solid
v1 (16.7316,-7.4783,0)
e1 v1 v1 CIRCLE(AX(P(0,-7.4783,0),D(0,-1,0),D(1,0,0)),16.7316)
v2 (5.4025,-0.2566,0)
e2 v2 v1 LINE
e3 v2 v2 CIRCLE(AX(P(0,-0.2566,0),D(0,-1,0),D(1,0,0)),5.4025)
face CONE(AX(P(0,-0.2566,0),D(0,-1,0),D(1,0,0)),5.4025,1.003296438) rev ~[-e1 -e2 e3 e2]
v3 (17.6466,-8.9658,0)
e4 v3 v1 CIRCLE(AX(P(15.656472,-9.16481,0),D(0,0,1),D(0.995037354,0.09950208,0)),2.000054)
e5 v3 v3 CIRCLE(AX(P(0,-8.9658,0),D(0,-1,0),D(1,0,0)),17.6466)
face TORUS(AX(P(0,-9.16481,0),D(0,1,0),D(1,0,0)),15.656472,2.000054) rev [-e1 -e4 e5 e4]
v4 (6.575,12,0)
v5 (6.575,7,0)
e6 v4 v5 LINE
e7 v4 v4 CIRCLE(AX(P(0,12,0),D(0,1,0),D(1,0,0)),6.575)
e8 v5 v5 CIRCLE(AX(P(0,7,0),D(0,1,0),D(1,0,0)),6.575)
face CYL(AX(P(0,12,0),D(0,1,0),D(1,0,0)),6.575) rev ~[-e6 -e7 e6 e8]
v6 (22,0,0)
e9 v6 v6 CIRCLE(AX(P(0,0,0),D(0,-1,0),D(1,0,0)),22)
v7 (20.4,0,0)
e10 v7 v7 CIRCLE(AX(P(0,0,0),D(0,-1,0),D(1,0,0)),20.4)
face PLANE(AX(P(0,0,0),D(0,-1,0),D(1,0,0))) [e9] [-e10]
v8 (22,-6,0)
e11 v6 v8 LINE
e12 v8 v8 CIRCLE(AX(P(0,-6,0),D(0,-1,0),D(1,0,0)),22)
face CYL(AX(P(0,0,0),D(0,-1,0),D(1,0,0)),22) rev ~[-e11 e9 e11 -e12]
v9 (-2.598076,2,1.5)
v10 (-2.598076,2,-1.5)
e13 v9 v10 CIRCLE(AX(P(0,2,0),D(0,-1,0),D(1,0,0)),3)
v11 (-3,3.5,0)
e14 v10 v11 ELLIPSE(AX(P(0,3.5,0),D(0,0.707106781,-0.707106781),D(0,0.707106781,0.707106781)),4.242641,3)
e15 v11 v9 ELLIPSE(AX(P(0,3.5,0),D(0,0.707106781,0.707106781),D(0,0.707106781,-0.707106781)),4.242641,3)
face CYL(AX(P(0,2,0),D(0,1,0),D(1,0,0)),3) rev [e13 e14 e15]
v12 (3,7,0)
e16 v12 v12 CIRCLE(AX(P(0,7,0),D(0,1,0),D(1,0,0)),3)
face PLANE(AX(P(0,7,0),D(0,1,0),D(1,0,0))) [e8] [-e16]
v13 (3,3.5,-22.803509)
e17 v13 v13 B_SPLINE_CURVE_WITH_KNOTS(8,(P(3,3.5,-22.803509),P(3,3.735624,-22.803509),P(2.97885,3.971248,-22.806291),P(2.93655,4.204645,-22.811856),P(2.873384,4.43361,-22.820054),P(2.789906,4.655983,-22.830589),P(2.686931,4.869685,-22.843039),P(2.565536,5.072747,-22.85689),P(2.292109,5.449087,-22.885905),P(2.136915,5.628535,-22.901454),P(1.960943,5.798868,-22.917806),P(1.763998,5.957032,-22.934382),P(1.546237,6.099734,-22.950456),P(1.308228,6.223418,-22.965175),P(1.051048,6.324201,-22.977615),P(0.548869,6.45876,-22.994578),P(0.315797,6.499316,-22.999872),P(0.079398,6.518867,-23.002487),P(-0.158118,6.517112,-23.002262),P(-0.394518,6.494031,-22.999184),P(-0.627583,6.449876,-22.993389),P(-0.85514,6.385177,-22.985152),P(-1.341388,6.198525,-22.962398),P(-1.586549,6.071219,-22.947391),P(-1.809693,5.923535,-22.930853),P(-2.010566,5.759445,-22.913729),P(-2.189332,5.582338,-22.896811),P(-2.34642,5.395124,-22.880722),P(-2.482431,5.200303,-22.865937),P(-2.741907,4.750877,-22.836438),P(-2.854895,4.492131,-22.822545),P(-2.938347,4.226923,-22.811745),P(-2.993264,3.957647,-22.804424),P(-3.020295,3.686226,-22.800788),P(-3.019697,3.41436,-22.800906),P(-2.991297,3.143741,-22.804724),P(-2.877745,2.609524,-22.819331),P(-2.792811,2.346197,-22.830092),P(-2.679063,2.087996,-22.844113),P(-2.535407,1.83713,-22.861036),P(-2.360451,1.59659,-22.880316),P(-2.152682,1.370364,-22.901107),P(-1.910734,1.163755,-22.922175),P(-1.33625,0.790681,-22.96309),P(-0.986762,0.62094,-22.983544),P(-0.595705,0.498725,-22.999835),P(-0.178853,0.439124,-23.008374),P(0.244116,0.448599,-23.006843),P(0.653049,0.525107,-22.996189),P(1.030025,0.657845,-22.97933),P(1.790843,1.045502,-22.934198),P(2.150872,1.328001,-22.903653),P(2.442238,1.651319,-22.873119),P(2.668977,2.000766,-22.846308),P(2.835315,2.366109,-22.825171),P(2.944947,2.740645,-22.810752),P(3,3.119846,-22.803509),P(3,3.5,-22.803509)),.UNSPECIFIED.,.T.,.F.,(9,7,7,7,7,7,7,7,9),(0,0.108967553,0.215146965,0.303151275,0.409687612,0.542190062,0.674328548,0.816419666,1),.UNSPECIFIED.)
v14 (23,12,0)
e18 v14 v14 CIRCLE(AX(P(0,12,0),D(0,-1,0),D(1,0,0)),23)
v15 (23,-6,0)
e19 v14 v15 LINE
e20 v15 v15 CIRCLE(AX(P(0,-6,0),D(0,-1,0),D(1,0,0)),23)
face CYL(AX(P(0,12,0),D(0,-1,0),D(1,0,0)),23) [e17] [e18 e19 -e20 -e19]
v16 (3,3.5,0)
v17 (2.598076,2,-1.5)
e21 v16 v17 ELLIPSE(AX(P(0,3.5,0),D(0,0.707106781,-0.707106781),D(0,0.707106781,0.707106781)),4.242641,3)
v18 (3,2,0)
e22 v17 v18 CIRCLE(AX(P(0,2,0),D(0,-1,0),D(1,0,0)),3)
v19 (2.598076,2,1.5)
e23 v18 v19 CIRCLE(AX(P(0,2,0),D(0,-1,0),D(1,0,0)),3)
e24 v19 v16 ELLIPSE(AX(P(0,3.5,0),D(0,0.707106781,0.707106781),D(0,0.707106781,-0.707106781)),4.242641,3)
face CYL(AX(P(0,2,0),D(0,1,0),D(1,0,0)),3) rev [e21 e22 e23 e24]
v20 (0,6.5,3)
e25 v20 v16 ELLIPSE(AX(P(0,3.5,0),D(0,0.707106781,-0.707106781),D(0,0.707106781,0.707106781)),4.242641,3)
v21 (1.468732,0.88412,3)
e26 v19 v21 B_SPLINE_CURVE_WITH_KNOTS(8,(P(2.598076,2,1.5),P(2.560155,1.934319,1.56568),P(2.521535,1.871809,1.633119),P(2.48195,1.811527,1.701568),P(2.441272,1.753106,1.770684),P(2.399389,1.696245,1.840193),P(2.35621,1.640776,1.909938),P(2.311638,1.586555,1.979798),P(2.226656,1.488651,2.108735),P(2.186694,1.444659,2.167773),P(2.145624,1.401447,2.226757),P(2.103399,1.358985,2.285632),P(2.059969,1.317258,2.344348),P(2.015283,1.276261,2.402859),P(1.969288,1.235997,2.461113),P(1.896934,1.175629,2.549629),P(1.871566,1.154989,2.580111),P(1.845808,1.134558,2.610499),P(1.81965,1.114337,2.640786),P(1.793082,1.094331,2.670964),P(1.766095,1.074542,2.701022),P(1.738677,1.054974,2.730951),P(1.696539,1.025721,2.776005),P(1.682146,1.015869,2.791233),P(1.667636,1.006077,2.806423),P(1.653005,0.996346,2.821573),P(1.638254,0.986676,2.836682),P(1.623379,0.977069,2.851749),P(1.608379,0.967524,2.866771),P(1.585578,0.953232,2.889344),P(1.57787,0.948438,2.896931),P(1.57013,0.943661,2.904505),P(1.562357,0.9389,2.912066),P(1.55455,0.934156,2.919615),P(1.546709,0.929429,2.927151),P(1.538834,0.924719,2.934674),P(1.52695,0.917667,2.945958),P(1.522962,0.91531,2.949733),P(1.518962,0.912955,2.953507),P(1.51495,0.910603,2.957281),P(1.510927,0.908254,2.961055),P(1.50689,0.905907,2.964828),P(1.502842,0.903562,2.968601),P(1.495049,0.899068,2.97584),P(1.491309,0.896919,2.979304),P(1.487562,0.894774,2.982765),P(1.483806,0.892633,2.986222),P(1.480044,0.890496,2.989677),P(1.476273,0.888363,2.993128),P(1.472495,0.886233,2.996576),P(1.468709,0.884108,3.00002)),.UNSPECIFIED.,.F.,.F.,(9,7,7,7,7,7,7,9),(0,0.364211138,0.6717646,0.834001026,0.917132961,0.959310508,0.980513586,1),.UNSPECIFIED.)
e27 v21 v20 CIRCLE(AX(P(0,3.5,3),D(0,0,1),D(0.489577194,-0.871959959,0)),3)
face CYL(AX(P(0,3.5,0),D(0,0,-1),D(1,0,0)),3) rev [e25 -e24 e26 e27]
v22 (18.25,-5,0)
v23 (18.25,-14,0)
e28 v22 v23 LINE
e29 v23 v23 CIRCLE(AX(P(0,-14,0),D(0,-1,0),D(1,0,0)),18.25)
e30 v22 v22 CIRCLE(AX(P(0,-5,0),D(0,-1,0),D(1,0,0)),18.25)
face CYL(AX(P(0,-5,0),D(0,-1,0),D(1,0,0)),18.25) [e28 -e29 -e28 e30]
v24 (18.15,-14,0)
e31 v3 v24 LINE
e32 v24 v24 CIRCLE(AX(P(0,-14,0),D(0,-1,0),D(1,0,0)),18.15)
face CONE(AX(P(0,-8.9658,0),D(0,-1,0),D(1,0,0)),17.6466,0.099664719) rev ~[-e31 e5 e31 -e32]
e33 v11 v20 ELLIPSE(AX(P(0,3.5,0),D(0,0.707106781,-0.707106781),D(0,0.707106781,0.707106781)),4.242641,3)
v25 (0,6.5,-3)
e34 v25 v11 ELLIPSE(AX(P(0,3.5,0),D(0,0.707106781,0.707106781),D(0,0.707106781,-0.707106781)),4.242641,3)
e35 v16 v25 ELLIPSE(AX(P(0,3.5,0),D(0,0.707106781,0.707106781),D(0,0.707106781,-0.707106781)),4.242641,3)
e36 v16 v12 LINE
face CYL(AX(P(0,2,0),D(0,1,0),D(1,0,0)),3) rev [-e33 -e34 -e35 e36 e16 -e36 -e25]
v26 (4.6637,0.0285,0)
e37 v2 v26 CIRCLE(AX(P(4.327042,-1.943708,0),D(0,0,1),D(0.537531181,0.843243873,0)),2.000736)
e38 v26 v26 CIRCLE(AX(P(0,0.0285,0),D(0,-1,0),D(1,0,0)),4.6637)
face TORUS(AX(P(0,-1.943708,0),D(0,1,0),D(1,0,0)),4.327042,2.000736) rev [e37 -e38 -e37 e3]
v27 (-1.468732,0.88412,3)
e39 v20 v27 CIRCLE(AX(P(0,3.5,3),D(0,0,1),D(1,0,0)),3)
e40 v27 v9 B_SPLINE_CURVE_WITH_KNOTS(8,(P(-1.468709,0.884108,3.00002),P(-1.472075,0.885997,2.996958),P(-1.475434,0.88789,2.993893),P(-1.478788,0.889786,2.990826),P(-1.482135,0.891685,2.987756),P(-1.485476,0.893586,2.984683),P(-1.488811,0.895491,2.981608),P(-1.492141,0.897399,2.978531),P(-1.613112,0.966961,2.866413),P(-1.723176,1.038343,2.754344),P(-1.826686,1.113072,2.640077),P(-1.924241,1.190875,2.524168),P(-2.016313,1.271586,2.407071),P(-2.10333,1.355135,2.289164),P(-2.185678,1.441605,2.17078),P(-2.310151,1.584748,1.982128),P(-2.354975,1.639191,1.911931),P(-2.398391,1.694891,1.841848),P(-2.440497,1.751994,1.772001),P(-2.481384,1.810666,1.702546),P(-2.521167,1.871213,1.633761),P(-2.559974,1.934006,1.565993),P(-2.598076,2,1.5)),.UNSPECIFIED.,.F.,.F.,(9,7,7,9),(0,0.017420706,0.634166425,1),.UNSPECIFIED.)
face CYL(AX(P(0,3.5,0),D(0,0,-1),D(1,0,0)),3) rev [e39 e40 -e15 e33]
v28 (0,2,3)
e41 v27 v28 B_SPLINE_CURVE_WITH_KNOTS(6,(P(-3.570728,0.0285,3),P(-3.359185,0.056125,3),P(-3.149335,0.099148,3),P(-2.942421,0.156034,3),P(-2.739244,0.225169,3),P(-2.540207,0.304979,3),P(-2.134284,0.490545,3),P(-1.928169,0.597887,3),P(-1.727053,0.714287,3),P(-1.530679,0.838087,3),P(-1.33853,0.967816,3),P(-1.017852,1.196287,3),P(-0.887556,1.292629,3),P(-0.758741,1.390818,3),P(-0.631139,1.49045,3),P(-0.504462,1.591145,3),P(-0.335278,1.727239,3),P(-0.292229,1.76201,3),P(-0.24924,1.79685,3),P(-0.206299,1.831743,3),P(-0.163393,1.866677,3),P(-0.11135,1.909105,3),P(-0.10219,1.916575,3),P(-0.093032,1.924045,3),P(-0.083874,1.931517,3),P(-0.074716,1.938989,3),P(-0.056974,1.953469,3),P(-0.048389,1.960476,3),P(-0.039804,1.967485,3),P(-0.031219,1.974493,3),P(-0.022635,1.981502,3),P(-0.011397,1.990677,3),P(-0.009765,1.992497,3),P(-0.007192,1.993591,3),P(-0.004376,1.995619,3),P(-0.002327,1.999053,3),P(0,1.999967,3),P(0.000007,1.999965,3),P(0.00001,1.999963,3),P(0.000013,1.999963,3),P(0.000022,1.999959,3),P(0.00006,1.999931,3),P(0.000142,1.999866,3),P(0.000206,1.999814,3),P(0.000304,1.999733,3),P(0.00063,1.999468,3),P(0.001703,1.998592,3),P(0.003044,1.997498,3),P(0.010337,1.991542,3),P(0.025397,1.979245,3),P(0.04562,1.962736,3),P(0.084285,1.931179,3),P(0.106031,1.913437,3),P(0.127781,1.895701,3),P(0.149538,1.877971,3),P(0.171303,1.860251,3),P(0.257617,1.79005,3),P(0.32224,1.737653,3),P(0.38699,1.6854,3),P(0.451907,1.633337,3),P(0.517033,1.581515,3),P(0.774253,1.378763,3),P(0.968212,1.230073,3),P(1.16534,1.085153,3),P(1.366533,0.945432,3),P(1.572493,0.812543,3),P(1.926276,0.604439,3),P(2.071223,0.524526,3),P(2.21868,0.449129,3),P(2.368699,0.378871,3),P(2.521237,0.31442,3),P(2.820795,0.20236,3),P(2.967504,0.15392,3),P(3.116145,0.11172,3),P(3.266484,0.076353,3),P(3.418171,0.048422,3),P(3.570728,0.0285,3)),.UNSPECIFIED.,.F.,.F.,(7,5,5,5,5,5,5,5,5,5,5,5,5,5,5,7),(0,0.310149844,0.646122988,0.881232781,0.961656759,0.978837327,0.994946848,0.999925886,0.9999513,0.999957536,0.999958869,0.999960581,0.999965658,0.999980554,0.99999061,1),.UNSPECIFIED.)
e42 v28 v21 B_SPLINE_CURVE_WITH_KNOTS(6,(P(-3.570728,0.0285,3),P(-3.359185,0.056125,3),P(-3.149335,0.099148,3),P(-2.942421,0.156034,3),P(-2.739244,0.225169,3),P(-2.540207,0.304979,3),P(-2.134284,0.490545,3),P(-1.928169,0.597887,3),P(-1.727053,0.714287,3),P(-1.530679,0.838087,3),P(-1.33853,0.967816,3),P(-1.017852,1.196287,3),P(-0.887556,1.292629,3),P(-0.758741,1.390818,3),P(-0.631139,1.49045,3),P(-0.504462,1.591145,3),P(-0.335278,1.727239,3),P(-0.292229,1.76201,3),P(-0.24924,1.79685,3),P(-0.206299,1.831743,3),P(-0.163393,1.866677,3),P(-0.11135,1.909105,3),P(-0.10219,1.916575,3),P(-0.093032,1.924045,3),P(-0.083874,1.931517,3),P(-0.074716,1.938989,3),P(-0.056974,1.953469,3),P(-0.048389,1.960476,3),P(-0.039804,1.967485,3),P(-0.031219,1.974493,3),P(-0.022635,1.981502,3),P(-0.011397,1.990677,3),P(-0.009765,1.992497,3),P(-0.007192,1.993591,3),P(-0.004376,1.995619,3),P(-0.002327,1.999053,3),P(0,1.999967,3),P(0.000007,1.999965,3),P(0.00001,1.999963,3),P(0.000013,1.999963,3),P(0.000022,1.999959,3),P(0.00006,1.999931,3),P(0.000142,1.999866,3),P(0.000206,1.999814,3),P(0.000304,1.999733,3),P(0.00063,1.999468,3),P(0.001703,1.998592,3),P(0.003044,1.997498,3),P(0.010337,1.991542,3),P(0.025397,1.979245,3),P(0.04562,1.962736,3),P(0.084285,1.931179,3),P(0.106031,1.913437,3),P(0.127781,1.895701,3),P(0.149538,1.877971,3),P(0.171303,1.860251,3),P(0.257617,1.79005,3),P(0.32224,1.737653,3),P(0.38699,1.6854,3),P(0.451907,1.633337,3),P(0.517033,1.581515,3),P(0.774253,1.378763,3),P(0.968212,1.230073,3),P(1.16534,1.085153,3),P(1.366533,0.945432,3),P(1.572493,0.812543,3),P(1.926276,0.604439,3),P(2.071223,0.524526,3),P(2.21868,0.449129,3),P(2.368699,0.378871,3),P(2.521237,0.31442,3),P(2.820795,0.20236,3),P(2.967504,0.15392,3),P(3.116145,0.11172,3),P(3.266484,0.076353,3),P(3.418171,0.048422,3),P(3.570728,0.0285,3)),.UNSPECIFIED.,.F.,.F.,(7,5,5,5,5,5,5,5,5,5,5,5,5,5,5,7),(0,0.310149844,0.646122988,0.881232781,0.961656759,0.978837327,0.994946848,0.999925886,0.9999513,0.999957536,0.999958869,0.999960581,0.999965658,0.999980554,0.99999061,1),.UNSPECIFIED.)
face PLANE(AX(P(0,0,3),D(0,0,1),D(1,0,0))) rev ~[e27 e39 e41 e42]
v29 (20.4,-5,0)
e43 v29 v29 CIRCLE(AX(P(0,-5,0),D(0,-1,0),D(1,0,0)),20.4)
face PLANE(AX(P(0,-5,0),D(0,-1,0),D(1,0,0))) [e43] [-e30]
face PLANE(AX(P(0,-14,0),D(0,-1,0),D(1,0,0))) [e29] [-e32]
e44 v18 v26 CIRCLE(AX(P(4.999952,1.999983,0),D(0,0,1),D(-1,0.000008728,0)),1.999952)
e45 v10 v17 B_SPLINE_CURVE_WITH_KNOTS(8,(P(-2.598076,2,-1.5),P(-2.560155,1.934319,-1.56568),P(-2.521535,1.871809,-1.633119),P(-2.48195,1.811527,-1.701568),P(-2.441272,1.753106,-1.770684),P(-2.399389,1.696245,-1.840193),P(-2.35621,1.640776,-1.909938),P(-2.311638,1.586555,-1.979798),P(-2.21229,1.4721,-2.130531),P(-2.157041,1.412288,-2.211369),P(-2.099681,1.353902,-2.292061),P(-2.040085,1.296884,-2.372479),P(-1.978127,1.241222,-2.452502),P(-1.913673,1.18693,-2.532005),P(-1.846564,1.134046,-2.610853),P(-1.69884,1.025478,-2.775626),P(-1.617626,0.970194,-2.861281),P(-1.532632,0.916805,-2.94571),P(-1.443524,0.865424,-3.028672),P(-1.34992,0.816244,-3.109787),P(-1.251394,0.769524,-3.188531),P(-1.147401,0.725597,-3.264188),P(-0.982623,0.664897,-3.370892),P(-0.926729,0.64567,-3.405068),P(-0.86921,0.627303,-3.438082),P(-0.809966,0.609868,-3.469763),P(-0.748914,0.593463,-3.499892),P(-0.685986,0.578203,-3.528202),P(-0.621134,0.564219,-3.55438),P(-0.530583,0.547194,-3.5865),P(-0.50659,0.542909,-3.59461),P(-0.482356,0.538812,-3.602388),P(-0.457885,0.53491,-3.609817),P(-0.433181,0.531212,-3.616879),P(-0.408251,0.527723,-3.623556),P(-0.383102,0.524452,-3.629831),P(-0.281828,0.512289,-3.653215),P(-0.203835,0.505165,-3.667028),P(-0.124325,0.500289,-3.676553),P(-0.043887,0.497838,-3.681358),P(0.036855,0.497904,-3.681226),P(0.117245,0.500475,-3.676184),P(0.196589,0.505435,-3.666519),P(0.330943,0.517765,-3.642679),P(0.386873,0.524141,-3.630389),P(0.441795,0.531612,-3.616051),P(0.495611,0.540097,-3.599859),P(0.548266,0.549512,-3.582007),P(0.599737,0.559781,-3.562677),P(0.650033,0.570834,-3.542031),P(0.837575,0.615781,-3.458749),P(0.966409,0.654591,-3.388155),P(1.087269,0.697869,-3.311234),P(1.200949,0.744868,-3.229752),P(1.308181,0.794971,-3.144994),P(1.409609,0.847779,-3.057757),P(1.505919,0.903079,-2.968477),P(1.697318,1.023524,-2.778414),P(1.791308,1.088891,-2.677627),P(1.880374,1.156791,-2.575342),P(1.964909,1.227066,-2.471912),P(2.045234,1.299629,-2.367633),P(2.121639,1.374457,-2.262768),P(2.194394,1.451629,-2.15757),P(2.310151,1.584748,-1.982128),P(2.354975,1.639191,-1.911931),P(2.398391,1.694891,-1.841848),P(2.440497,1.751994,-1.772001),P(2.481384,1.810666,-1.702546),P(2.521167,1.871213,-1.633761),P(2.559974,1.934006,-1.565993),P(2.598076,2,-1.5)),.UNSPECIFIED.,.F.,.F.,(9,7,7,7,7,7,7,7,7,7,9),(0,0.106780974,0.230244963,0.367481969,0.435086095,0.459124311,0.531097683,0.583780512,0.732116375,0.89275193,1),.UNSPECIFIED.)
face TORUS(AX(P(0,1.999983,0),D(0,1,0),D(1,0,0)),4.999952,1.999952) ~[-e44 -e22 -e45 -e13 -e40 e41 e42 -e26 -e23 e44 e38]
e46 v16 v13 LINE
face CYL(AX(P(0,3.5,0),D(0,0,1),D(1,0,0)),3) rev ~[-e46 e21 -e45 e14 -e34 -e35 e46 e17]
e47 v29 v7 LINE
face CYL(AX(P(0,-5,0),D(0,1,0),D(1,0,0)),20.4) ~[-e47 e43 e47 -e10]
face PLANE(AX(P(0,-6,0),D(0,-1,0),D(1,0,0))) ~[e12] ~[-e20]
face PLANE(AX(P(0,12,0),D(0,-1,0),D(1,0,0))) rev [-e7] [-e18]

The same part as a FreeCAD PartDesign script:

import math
import FreeCAD as App
import Part
import Sketcher
from FreeCAD import Vector
Q = App.Units.Quantity

doc = App.newDocument("Part")
body = doc.addObject("PartDesign::Body", "Body")

# Sketch on XY plane
sketch1 = body.newObject("Sketcher::SketchObject", "Sketch")
sketch1.AttachmentSupport = (doc.getObject("XY_Plane"), [""])
sketch1.MapMode = "FlatFace"
sketch1.addGeometry([
    Part.LineSegment(Vector(23, 12, 0), Vector(3, 12, 0)),  # 0
    Part.LineSegment(Vector(3, 12, 0), Vector(3, 2, 0)),  # 1
    Part.ArcOfCircle(Part.Circle(Vector(5, 2, 0), Vector(0, 0, 1), 2), math.radians(180), math.radians(260)),  # 2
    Part.ArcOfCircle(Part.Circle(Vector(4.33, -1.94, 0), Vector(0, 0, 1), 2), math.radians(57), math.radians(80)),  # 3
    Part.LineSegment(Vector(5.4, -0.26, 0), Vector(16.73, -7.48, 0)),  # 4
    Part.ArcOfCircle(Part.Circle(Vector(15.66, -9.16, 0), Vector(0, 0, 1), 2), math.radians(6), math.radians(57)),  # 5
    Part.LineSegment(Vector(17.65, -8.97, 0), Vector(18.15, -14, 0)),  # 6
    Part.LineSegment(Vector(18.15, -14, 0), Vector(18.25, -14, 0)),  # 7
    Part.LineSegment(Vector(18.25, -14, 0), Vector(18.25, -5, 0)),  # 8
    Part.LineSegment(Vector(18.25, -5, 0), Vector(20.4, -5, 0)),  # 9
    Part.LineSegment(Vector(20.4, -5, 0), Vector(20.4, 0, 0)),  # 10
    Part.LineSegment(Vector(20.4, 0, 0), Vector(22, 0, 0)),  # 11
    Part.LineSegment(Vector(22, 0, 0), Vector(22, -6, 0)),  # 12
    Part.LineSegment(Vector(22, -6, 0), Vector(23, -6, 0)),  # 13
    Part.LineSegment(Vector(23, -6, 0), Vector(23, 12, 0)),  # 14
], False)
sketch1.addConstraint([
    Sketcher.Constraint("Coincident", 0, 2, 1, 1),
    Sketcher.Constraint("Tangent", 1, 2, 2, 1),
    Sketcher.Constraint("Tangent", 2, 2, 3, 2),
    Sketcher.Constraint("Tangent", 3, 1, 4, 1),
    Sketcher.Constraint("Tangent", 4, 2, 5, 2),
    Sketcher.Constraint("Tangent", 5, 1, 6, 1),
    Sketcher.Constraint("Coincident", 6, 2, 7, 1),
    Sketcher.Constraint("Coincident", 7, 2, 8, 1),
    Sketcher.Constraint("Coincident", 8, 2, 9, 1),
    Sketcher.Constraint("Coincident", 9, 2, 10, 1),
    Sketcher.Constraint("Coincident", 10, 2, 11, 1),
    Sketcher.Constraint("Coincident", 11, 2, 12, 1),
    Sketcher.Constraint("Coincident", 12, 2, 13, 1),
    Sketcher.Constraint("Coincident", 13, 2, 14, 1),
    Sketcher.Constraint("Coincident", 14, 2, 0, 1),
    Sketcher.Constraint("Horizontal", 0),
    Sketcher.Constraint("Vertical", 1),
    Sketcher.Constraint("Horizontal", 7),
    Sketcher.Constraint("Vertical", 8),
    Sketcher.Constraint("Horizontal", 9),
    Sketcher.Constraint("Vertical", 10),
    Sketcher.Constraint("Horizontal", 11),
    Sketcher.Constraint("Vertical", 12),
    Sketcher.Constraint("Horizontal", 13),
    Sketcher.Constraint("Vertical", 14),
    Sketcher.Constraint("Equal", 2, 3),
    Sketcher.Constraint("Equal", 3, 5),
    Sketcher.Constraint("PointOnObject", 10, 2, -1),
    Sketcher.Constraint("Radius", 2, Q("2 mm")),
    Sketcher.Constraint("DistanceX", 13, 1, 13, 2, Q("1 mm")),
    Sketcher.Constraint("DistanceY", 8, 1, 8, 2, Q("9 mm")),
    Sketcher.Constraint("DistanceY", 10, 1, 10, 2, Q("5 mm")),
    Sketcher.Constraint("DistanceY", 12, 2, 12, 1, Q("6 mm")),
    Sketcher.Constraint("DistanceX", 7, 1, 7, 2, Q("0.1 mm")),
    Sketcher.Constraint("DistanceX", 11, 1, 11, 2, Q("1.6 mm")),
    Sketcher.Constraint("DistanceX", -1, 1, 2, 3, Q("5 mm")),
    Sketcher.Constraint("DistanceY", -1, 1, 2, 3, Q("2 mm")),
    Sketcher.Constraint("DistanceY", -1, 1, 0, 2, Q("12 mm")),
    Sketcher.Constraint("DistanceX", 0, 2, 0, 1, Q("20 mm")),
    Sketcher.Constraint("DistanceX", 9, 1, 9, 2, Q("2.15 mm")),
    Sketcher.Constraint("Angle", 6, Q("-84.2896 deg")),
    Sketcher.Constraint("Distance", 4, Q("13.435 mm")),
    Sketcher.Constraint("DistanceY", 3, 3, -1, 1, Q("1.943 mm")),
])
revolution = body.newObject("PartDesign::Revolution", "Revolution")
revolution.Profile = sketch1
revolution.ReferenceAxis = (sketch1, ["V_Axis"])
revolution.Angle = 360

# Sketch on XY plane
sketch2 = body.newObject("Sketcher::SketchObject", "Sketch001")
sketch2.AttachmentSupport = (doc.getObject("XY_Plane"), [""])
sketch2.MapMode = "FlatFace"
sketch2.addGeometry(Part.Circle(Vector(0, 3.5, 0), Vector(0, 0, 1), 3), False)
sketch2.addConstraint([
    Sketcher.Constraint("PointOnObject", 0, 3, -2),
    Sketcher.Constraint("Diameter", 0, Q("6 mm")),
    Sketcher.Constraint("DistanceY", -1, 1, 0, 3, Q("3.5 mm")),
])
pocket1 = body.newObject("PartDesign::Pocket", "Pocket")
pocket1.Profile = sketch2
pocket1.Type = "TwoLengths"
pocket1.Length = 3
pocket1.Length2 = 33
pocket1.Reversed = True

# Sketch on XZ plane
sketch3 = body.newObject("Sketcher::SketchObject", "Sketch002")
sketch3.AttachmentSupport = (doc.getObject("XZ_Plane"), [""])
sketch3.MapMode = "FlatFace"
sketch3.AttachmentOffset = App.Placement(Vector(0, 0, -12), App.Rotation())
sketch3.addGeometry(Part.Circle(Vector(0, 0, 0), Vector(0, 0, 1), 7), False)
sketch3.addConstraint([
    Sketcher.Constraint("Coincident", 0, 3, -1, 1),
    Sketcher.Constraint("Diameter", 0, Q("13.15 mm")),
])
pocket2 = body.newObject("PartDesign::Pocket", "Pocket001")
pocket2.Profile = sketch3
pocket2.Length = 5
pocket2.Reversed = True

doc.recompute()
